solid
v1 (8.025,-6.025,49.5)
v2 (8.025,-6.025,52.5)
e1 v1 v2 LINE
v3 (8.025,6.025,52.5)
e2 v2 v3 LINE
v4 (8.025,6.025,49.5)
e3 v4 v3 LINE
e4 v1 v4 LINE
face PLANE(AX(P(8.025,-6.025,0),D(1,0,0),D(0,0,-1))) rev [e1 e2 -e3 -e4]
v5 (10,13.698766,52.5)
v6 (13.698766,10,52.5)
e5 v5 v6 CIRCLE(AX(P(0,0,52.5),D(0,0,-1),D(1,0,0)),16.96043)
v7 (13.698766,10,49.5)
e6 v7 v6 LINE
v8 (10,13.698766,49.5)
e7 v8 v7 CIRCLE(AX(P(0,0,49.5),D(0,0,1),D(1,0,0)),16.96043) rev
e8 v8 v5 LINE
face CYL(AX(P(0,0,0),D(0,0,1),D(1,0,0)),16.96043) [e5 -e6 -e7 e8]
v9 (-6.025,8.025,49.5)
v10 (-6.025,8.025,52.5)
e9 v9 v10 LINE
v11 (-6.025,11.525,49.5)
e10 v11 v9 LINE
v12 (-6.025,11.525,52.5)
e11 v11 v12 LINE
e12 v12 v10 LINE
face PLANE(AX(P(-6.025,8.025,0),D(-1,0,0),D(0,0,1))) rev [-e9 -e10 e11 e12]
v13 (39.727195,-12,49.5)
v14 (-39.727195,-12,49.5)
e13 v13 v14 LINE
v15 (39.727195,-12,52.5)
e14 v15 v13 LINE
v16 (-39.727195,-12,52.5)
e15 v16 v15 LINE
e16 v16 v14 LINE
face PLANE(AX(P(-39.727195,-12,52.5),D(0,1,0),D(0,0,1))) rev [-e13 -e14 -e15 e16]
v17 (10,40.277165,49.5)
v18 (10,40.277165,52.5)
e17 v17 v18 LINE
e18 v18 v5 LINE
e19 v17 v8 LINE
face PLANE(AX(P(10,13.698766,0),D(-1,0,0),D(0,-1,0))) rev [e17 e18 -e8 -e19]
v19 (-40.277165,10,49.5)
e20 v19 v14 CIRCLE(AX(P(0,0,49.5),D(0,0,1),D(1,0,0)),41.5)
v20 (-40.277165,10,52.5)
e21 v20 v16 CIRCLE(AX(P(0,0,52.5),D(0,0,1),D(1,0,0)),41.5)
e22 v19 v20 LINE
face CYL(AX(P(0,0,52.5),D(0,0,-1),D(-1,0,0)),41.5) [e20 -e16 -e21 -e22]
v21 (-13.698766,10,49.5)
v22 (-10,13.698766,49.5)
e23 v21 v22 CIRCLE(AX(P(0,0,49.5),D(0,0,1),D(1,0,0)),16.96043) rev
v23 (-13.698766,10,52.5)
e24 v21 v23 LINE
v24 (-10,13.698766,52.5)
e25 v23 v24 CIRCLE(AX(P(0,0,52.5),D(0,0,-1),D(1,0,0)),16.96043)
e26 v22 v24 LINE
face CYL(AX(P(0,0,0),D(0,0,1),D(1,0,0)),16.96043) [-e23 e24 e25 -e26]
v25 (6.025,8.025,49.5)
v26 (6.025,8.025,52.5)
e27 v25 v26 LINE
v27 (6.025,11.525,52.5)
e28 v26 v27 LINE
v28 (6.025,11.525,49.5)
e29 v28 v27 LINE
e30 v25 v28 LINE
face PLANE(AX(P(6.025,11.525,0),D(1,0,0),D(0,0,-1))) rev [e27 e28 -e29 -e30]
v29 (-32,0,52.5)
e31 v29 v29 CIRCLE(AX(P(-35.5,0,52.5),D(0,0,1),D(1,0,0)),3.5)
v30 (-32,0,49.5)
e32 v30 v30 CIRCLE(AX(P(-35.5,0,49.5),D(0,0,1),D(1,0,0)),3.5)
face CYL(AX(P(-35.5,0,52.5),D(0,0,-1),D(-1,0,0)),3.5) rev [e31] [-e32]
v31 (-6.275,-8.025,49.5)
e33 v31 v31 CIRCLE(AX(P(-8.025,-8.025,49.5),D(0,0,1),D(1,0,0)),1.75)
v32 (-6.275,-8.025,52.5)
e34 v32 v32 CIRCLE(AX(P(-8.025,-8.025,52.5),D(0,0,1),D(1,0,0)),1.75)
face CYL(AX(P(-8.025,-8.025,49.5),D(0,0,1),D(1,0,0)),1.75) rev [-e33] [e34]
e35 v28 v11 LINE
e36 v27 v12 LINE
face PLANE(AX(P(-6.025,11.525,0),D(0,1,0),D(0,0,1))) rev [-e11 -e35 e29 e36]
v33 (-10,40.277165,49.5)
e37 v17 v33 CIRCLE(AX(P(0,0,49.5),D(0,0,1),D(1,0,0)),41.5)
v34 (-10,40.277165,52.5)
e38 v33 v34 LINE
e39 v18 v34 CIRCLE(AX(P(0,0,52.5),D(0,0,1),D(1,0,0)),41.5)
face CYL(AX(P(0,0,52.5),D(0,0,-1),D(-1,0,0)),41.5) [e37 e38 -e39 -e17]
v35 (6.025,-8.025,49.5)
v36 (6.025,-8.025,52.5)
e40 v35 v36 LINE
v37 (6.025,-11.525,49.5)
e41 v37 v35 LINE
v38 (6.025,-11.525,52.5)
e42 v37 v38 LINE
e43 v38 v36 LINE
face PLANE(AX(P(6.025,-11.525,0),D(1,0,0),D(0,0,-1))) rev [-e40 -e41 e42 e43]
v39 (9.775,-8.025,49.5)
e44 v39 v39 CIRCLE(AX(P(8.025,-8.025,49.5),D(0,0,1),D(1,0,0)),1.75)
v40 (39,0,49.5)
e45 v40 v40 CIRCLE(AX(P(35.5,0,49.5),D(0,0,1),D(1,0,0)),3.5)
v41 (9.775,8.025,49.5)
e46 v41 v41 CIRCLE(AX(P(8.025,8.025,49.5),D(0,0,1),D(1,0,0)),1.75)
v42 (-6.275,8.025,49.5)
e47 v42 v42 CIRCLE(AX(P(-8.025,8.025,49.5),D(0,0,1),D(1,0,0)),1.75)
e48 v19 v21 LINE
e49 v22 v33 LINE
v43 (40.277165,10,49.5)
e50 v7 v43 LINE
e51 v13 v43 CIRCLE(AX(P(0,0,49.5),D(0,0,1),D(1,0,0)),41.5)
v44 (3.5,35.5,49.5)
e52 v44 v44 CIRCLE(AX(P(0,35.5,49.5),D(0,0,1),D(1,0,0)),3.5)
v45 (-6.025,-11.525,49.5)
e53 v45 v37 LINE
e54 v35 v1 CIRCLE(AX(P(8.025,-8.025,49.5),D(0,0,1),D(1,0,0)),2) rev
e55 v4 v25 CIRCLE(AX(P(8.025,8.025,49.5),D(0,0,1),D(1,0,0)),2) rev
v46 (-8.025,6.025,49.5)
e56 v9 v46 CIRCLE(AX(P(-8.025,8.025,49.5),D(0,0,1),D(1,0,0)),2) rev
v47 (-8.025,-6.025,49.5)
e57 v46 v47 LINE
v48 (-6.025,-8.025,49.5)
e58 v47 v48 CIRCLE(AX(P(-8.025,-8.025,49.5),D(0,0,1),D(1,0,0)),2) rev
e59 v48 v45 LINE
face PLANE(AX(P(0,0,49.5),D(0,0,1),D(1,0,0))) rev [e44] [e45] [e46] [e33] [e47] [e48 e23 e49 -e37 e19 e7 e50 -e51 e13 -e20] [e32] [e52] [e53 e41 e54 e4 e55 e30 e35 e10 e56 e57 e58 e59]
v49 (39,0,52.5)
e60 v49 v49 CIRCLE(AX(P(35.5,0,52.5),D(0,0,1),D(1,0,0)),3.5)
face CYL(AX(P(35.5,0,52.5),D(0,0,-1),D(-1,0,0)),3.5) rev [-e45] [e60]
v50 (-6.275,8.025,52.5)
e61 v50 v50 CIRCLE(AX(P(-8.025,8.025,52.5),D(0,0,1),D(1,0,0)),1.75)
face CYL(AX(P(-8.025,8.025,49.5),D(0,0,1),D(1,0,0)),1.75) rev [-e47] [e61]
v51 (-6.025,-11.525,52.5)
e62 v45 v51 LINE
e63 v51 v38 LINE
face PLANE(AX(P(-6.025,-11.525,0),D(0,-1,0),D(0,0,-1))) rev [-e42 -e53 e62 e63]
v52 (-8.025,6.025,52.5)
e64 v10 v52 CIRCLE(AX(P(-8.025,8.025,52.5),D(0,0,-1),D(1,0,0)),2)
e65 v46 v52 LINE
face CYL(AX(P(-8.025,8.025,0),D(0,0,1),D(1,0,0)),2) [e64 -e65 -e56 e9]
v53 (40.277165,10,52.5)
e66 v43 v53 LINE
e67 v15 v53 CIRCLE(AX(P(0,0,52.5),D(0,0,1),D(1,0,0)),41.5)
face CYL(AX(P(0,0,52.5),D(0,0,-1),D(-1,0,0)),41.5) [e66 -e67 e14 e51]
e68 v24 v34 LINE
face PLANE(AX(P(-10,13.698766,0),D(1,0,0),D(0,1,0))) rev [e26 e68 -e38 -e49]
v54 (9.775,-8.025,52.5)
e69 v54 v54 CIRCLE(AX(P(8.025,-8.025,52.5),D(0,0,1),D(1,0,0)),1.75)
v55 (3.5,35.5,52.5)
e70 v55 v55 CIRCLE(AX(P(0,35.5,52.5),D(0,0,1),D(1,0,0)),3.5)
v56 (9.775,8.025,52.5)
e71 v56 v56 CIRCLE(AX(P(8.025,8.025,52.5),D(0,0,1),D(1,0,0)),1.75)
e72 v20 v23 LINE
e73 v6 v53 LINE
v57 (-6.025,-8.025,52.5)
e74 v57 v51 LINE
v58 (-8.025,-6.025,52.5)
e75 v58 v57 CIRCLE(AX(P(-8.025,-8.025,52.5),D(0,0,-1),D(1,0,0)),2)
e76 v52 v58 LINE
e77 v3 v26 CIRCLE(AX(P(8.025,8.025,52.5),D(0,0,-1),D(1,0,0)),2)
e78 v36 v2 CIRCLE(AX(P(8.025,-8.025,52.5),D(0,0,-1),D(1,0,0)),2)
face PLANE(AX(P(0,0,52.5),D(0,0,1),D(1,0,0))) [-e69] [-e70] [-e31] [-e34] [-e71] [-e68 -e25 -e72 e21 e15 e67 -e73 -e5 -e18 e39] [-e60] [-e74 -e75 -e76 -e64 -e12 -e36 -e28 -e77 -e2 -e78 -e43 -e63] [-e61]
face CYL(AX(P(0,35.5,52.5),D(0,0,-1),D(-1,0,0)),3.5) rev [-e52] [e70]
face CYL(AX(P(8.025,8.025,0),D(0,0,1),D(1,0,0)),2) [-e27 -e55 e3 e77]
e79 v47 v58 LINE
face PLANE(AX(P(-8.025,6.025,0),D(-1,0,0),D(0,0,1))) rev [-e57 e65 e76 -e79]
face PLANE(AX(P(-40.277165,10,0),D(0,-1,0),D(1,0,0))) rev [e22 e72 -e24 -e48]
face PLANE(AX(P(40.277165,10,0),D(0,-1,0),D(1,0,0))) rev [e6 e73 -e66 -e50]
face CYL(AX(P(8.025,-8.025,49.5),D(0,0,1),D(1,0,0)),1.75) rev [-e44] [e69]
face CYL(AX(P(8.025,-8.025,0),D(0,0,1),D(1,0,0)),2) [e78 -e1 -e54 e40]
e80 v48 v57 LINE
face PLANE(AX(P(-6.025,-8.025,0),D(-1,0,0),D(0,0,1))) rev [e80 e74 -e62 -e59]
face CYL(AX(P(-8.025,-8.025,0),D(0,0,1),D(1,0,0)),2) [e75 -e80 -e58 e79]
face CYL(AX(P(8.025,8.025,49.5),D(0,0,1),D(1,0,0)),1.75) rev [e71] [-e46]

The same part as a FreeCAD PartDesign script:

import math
import FreeCAD as App
import Part
import Sketcher
from FreeCAD import Vector

doc = App.newDocument("Part")
body = doc.addObject("PartDesign::Body", "Body")

# Sketch on XY plane
sketch1 = body.newObject("Sketcher::SketchObject", "Sketch")
sketch1.AttachmentSupport = (doc.getObject("XY_Plane"), [""])
sketch1.MapMode = "FlatFace"
sketch1.addGeometry([
    Part.LineSegment(Vector(-39.7, -12, 0), Vector(-26.9, -12, 0)),  # 0
    Part.ArcOfCircle(Part.Circle(Vector(0, 0, 0), Vector(0, 0, 1), 29.5), math.radians(-24), math.radians(204)),  # 1
    Part.LineSegment(Vector(26.9, -12, 0), Vector(39.7, -12, 0)),  # 2
    Part.ArcOfCircle(Part.Circle(Vector(0, 0, 0), Vector(0, 0, 1), 41.5), math.radians(-17), math.radians(197)),  # 3
    Part.Circle(Vector(-35.5, 0, 0), Vector(0, 0, 1), 3.5),  # 4
    Part.Circle(Vector(35.5, 0, 0), Vector(0, 0, 1), 3.5),  # 5
    Part.Circle(Vector(0, 35.5, 0), Vector(0, 0, 1), 3.5),  # 6
], False)
sketch1.addConstraint([
    Sketcher.Constraint("Coincident", 0, 2, 1, 2),
    Sketcher.Constraint("Coincident", 1, 1, 2, 1),
    Sketcher.Constraint("Coincident", 2, 2, 3, 1),
    Sketcher.Constraint("Coincident", 3, 2, 0, 1),
    Sketcher.Constraint("Horizontal", 0),
    Sketcher.Constraint("Horizontal", 2),
    Sketcher.Constraint("Coincident", 1, 3, -1, 1),
    Sketcher.Constraint("Coincident", 3, 3, -1, 1),
    Sketcher.Constraint("Equal", 4, 5),
    Sketcher.Constraint("Equal", 5, 6),
    Sketcher.Constraint("Symmetric", 4, 3, 5, 3, -1, 1),
    Sketcher.Constraint("PointOnObject", 4, 3, -1),
    Sketcher.Constraint("PointOnObject", 6, 3, -2),
    Sketcher.Constraint("Horizontal", 0, 2, 1, 1),
    Sketcher.Constraint("Diameter", 4, 7.0),
    Sketcher.Constraint("Radius", 1, 29.5),
    Sketcher.Constraint("Radius", 3, 41.5),
    Sketcher.Constraint("DistanceY", 0, 2, -1, 1, 12.0),
    Sketcher.Constraint("DistanceX", 4, 3, 5, 3, 71.0),
    Sketcher.Constraint("DistanceY", -1, 1, 6, 3, 35.5),
])
pad1 = body.newObject("PartDesign::Pad", "Pad")
pad1.Profile = sketch1
pad1.Length = 52.5

# Sketch on XY plane
sketch2 = body.newObject("Sketcher::SketchObject", "Sketch001")
sketch2.AttachmentSupport = (doc.getObject("XY_Plane"), [""])
sketch2.MapMode = "FlatFace"
sketch2.AttachmentOffset = App.Placement(Vector(0, 0, 49.5), App.Rotation())
sketch2.addGeometry([
    Part.Circle(Vector(0, 0, 0), Vector(0, 0, 1), 29.5),  # 0
    Part.Circle(Vector(-8, -8, 0), Vector(0, 0, 1), 1.8),  # 1
    Part.Circle(Vector(8, -8, 0), Vector(0, 0, 1), 1.8),  # 2
    Part.Circle(Vector(-8, 8, 0), Vector(0, 0, 1), 1.8),  # 3
    Part.Circle(Vector(8, 8, 0), Vector(0, 0, 1), 1.8),  # 4
], False)
sketch2.addConstraint([
    Sketcher.Constraint("Coincident", 0, 3, -1, 1),
    Sketcher.Constraint("Equal", 1, 2),
    Sketcher.Constraint("Equal", 2, 3),
    Sketcher.Constraint("Equal", 3, 4),
    Sketcher.Constraint("Symmetric", 2, 3, 3, 3, -1, 1),
    Sketcher.Constraint("Symmetric", 1, 3, 4, 3, -1, 1),
    Sketcher.Constraint("Symmetric", 1, 3, 2, 3, -2),
    Sketcher.Constraint("Diameter", 0, 59.0),
    Sketcher.Constraint("Diameter", 1, 3.5),
    Sketcher.Constraint("DistanceX", 1, 3, 2, 3, 16.05),
    Sketcher.Constraint("DistanceY", 1, 3, 3, 3, 16.05),
])
pad2 = body.newObject("PartDesign::Pad", "Pad001")
pad2.Profile = sketch2
pad2.Length = 3

# Sketch on XY plane
sketch3 = body.newObject("Sketcher::SketchObject", "Sketch002")
sketch3.AttachmentSupport = (doc.getObject("XY_Plane"), [""])
sketch3.MapMode = "FlatFace"
sketch3.AttachmentOffset = App.Placement(Vector(0, 0, 52.5), App.Rotation())
sketch3.addGeometry([
    Part.LineSegment(Vector(-8, 6, 0), Vector(-8, -6, 0)),  # 0
    Part.ArcOfCircle(Part.Circle(Vector(-8, -8, 0), Vector(0, 0, 1), 2), math.radians(0), math.radians(90)),  # 1
    Part.LineSegment(Vector(-6, -8, 0), Vector(6, -8, 0)),  # 2
    Part.ArcOfCircle(Part.Circle(Vector(8, -8, 0), Vector(0, 0, 1), 2), math.radians(90), math.radians(180)),  # 3
    Part.LineSegment(Vector(8, -6, 0), Vector(8, 6, 0)),  # 4
    Part.ArcOfCircle(Part.Circle(Vector(8, 8, 0), Vector(0, 0, 1), 2), math.radians(-180), math.radians(-90)),  # 5
    Part.LineSegment(Vector(6, 8, 0), Vector(-6, 8, 0)),  # 6
    Part.ArcOfCircle(Part.Circle(Vector(-8, 8, 0), Vector(0, 0, 1), 2), math.radians(-90), math.radians(0)),  # 7
], False)
sketch3.addConstraint([
    Sketcher.Constraint("Coincident", 0, 2, 1, 2),
    Sketcher.Constraint("Coincident", 1, 1, 2, 1),
    Sketcher.Constraint("Coincident", 2, 2, 3, 2),
    Sketcher.Constraint("Coincident", 3, 1, 4, 1),
    Sketcher.Constraint("Coincident", 4, 2, 5, 2),
    Sketcher.Constraint("Coincident", 5, 1, 6, 1),
    Sketcher.Constraint("Coincident", 6, 2, 7, 2),
    Sketcher.Constraint("Coincident", 7, 1, 0, 1),
    Sketcher.Constraint("Vertical", 0),
    Sketcher.Constraint("Horizontal", 2),
    Sketcher.Constraint("Vertical", 4),
    Sketcher.Constraint("Horizontal", 6),
    Sketcher.Constraint("Equal", 1, 3),
    Sketcher.Constraint("Equal", 3, 5),
    Sketcher.Constraint("Equal", 5, 7),
    Sketcher.Constraint("Symmetric", 1, 3, 5, 3, -1, 1),
    Sketcher.Constraint("Symmetric", 3, 3, 7, 3, -1, 1),
    Sketcher.Constraint("Symmetric", 1, 3, 3, 3, -2),
    Sketcher.Constraint("Horizontal", 3, 3, 1, 1),
    Sketcher.Constraint("Horizontal", 7, 3, 5, 1),
    Sketcher.Constraint("Vertical", 7, 3, 0, 2),
    Sketcher.Constraint("Vertical", 5, 3, 3, 1),
    Sketcher.Constraint("Equal", 6, 0),
    Sketcher.Constraint("Radius", 1, 2.0),
    Sketcher.Constraint("DistanceX", 2, 1, 2, 2, 12.05),
])
pocket1 = body.newObject("PartDesign::Pocket", "Pocket")
pocket1.Profile = sketch3
pocket1.Type = "ThroughAll"

# Sketch on XY plane
sketch4 = body.newObject("Sketcher::SketchObject", "Sketch003")
sketch4.AttachmentSupport = (doc.getObject("XY_Plane"), [""])
sketch4.MapMode = "FlatFace"
sketch4.AttachmentOffset = App.Placement(Vector(0, 0, 52.5), App.Rotation())
sketch4.addGeometry([
    Part.LineSegment(Vector(27, -12, 0), Vector(-27, -12, 0)),
    Part.LineSegment(Vector(-27, -12, 0), Vector(-29, -30, 0)),
    Part.LineSegment(Vector(-29, -30, 0), Vector(27, -33, 0)),
    Part.LineSegment(Vector(27, -33, 0), Vector(27, -12, 0)),
], False)
sketch4.addConstraint([
    Sketcher.Constraint("Coincident", 0, 2, 1, 1),
    Sketcher.Constraint("Coincident", 1, 2, 2, 1),
    Sketcher.Constraint("Coincident", 2, 2, 3, 1),
    Sketcher.Constraint("Coincident", 3, 2, 0, 1),
    Sketcher.Constraint("Horizontal", 0),
    Sketcher.Constraint("Vertical", 3),
    Sketcher.Constraint("DistanceY", 0, 2, -1, 1, 12.0),
    Sketcher.Constraint("DistanceX", 0, 2, 0, 1, 53.898052),
    Sketcher.Constraint("DistanceY", 3, 1, 3, 2, 21.158312),
    Sketcher.Constraint("Distance", 1, 17.884642),
    Sketcher.Constraint("DistanceY", 1, 2, -1, 1, 29.730661),
    Sketcher.Constraint("DistanceX", 0, 2, -1, 1, 26.949026),
])
pocket2 = body.newObject("PartDesign::Pocket", "Pocket001")
pocket2.Profile = sketch4
pocket2.Type = "ThroughAll"

# Sketch on XY plane
sketch5 = body.newObject("Sketcher::SketchObject", "Sketch004")
sketch5.AttachmentSupport = (doc.getObject("XY_Plane"), [""])
sketch5.MapMode = "FlatFace"
sketch5.AttachmentOffset = App.Placement(Vector(0, 0, 52.5), App.Rotation())
sketch5.addGeometry([
    Part.LineSegment(Vector(-40, 10, 0), Vector(-14, 10, 0)),  # 0
    Part.ArcOfCircle(Part.Circle(Vector(0, 0, 0), Vector(0, 0, 1), 17), math.radians(126.13), math.radians(143.87)),  # 1
    Part.LineSegment(Vector(-10, 14, 0), Vector(-10, 40, 0)),  # 2
    Part.ArcOfCircle(Part.Circle(Vector(0, 0, 0), Vector(0, 0, 1), 42), math.radians(104), math.radians(166)),  # 3
    Part.LineSegment(Vector(10, 40, 0), Vector(10, 14, 0)),  # 4
    Part.ArcOfCircle(Part.Circle(Vector(0, 0, 0), Vector(0, 0, 1), 17), math.radians(36.13), math.radians(53.87)),  # 5
    Part.LineSegment(Vector(14, 10, 0), Vector(40, 10, 0)),  # 6
    Part.ArcOfCircle(Part.Circle(Vector(0, 0, 0), Vector(0, 0, 1), 42), math.radians(14), math.radians(76)),  # 7
], False)
sketch5.addConstraint([
    Sketcher.Constraint("Coincident", 0, 2, 1, 2),
    Sketcher.Constraint("Coincident", 1, 1, 2, 1),
    Sketcher.Constraint("Coincident", 2, 2, 3, 1),
    Sketcher.Constraint("Coincident", 3, 2, 0, 1),
    Sketcher.Constraint("Coincident", 4, 2, 5, 2),
    Sketcher.Constraint("Coincident", 5, 1, 6, 1),
    Sketcher.Constraint("Coincident", 6, 2, 7, 1),
    Sketcher.Constraint("Coincident", 7, 2, 4, 1),
    Sketcher.Constraint("Horizontal", 0),
    Sketcher.Constraint("Vertical", 2),
    Sketcher.Constraint("Vertical", 4),
    Sketcher.Constraint("Horizontal", 6),
    Sketcher.Constraint("Coincident", 1, 3, -1, 1),
    Sketcher.Constraint("Coincident", 3, 3, -1, 1),
    Sketcher.Constraint("Coincident", 5, 3, -1, 1),
    Sketcher.Constraint("Coincident", 7, 3, -1, 1),
    Sketcher.Constraint("Equal", 1, 5),
    Sketcher.Constraint("Equal", 3, 7),
    Sketcher.Constraint("Horizontal", 1, 1, 4, 2),
    Sketcher.Constraint("Horizontal", 3, 2, 5, 1),
    Sketcher.Constraint("Equal", 6, 2),
    Sketcher.Constraint("Radius", 3, 41.5),
    Sketcher.Constraint("DistanceY", -1, 1, 0, 2, 10.0),
    Sketcher.Constraint("Radius", 1, 16.96043),
])
pocket3 = body.newObject("PartDesign::Pocket", "Pocket002")
pocket3.Profile = sketch5
pocket3.Type = "ThroughAll"

# Sketch on XY plane
sketch6 = body.newObject("Sketcher::SketchObject", "Sketch005")
sketch6.AttachmentSupport = (doc.getObject("XY_Plane"), [""])
sketch6.MapMode = "FlatFace"
sketch6.AttachmentOffset = App.Placement(Vector(0, 0, 52.5), App.Rotation())
sketch6.addGeometry([
    Part.LineSegment(Vector(-6, 11.5, 0), Vector(-6, 8, 0)),  # 0
    Part.LineSegment(Vector(-6, 8, 0), Vector(6, 8, 0)),  # 1
    Part.LineSegment(Vector(6, 8, 0), Vector(6, 11.5, 0)),  # 2
    Part.LineSegment(Vector(6, 11.5, 0), Vector(-6, 11.5, 0)),  # 3
    Part.LineSegment(Vector(-6, -8, 0), Vector(-6, -11.5, 0)),  # 4
    Part.LineSegment(Vector(-6, -11.5, 0), Vector(6, -11.5, 0)),  # 5
    Part.LineSegment(Vector(6, -11.5, 0), Vector(6, -8, 0)),  # 6
    Part.LineSegment(Vector(6, -8, 0), Vector(-6, -8, 0)),  # 7
], False)
sketch6.addConstraint([
    Sketcher.Constraint("Coincident", 0, 2, 1, 1),
    Sketcher.Constraint("Coincident", 1, 2, 2, 1),
    Sketcher.Constraint("Coincident", 2, 2, 3, 1),
    Sketcher.Constraint("Coincident", 3, 2, 0, 1),
    Sketcher.Constraint("Coincident", 4, 2, 5, 1),
    Sketcher.Constraint("Coincident", 5, 2, 6, 1),
    Sketcher.Constraint("Coincident", 6, 2, 7, 1),
    Sketcher.Constraint("Coincident", 7, 2, 4, 1),
    Sketcher.Constraint("Vertical", 0),
    Sketcher.Constraint("Horizontal", 1),
    Sketcher.Constraint("Vertical", 2),
    Sketcher.Constraint("Horizontal", 3),
    Sketcher.Constraint("Vertical", 4),
    Sketcher.Constraint("Horizontal", 5),
    Sketcher.Constraint("Vertical", 6),
    Sketcher.Constraint("Horizontal", 7),
    Sketcher.Constraint("Symmetric", 2, 2, 4, 2, -1, 1),
    Sketcher.Constraint("Symmetric", 0, 2, 6, 2, -1, 1),
    Sketcher.Constraint("Vertical", 3, 2, 4, 2),
    Sketcher.Constraint("DistanceY", 0, 2, 0, 1, 3.5),
    Sketcher.Constraint("DistanceX", 1, 1, 1, 2, 12.05),
    Sketcher.Constraint("DistanceY", 4, 2, 0, 2, 19.55),
])
pocket4 = body.newObject("PartDesign::Pocket", "Pocket003")
pocket4.Profile = sketch6
pocket4.Type = "ThroughAll"

# Sketch on XY plane
sketch7 = body.newObject("Sketcher::SketchObject", "Sketch006")
sketch7.AttachmentSupport = (doc.getObject("XY_Plane"), [""])
sketch7.MapMode = "FlatFace"
sketch7.addGeometry([
    Part.LineSegment(Vector(49, 44, 0), Vector(49, -44, 0)),
    Part.LineSegment(Vector(49, -44, 0), Vector(-49, -44, 0)),
    Part.LineSegment(Vector(-49, -44, 0), Vector(-49, 44, 0)),
    Part.LineSegment(Vector(-49, 44, 0), Vector(49, 44, 0)),
], False)
sketch7.addConstraint([
    Sketcher.Constraint("Coincident", 0, 2, 1, 1),
    Sketcher.Constraint("Coincident", 1, 2, 2, 1),
    Sketcher.Constraint("Coincident", 2, 2, 3, 1),
    Sketcher.Constraint("Coincident", 3, 2, 0, 1),
    Sketcher.Constraint("Vertical", 0),
    Sketcher.Constraint("Horizontal", 1),
    Sketcher.Constraint("Vertical", 2),
    Sketcher.Constraint("Horizontal", 3),
    Sketcher.Constraint("Symmetric", 0, 2, 2, 2, -1, 1),
    Sketcher.Constraint("DistanceX", 1, 2, 1, 1, 98.893832),
    Sketcher.Constraint("DistanceY", 0, 2, 0, 1, 87.653821),
])
pocket5 = body.newObject("PartDesign::Pocket", "Pocket004")
pocket5.Profile = sketch7
pocket5.Length = 49.5
pocket5.Reversed = True

doc.recompute()
